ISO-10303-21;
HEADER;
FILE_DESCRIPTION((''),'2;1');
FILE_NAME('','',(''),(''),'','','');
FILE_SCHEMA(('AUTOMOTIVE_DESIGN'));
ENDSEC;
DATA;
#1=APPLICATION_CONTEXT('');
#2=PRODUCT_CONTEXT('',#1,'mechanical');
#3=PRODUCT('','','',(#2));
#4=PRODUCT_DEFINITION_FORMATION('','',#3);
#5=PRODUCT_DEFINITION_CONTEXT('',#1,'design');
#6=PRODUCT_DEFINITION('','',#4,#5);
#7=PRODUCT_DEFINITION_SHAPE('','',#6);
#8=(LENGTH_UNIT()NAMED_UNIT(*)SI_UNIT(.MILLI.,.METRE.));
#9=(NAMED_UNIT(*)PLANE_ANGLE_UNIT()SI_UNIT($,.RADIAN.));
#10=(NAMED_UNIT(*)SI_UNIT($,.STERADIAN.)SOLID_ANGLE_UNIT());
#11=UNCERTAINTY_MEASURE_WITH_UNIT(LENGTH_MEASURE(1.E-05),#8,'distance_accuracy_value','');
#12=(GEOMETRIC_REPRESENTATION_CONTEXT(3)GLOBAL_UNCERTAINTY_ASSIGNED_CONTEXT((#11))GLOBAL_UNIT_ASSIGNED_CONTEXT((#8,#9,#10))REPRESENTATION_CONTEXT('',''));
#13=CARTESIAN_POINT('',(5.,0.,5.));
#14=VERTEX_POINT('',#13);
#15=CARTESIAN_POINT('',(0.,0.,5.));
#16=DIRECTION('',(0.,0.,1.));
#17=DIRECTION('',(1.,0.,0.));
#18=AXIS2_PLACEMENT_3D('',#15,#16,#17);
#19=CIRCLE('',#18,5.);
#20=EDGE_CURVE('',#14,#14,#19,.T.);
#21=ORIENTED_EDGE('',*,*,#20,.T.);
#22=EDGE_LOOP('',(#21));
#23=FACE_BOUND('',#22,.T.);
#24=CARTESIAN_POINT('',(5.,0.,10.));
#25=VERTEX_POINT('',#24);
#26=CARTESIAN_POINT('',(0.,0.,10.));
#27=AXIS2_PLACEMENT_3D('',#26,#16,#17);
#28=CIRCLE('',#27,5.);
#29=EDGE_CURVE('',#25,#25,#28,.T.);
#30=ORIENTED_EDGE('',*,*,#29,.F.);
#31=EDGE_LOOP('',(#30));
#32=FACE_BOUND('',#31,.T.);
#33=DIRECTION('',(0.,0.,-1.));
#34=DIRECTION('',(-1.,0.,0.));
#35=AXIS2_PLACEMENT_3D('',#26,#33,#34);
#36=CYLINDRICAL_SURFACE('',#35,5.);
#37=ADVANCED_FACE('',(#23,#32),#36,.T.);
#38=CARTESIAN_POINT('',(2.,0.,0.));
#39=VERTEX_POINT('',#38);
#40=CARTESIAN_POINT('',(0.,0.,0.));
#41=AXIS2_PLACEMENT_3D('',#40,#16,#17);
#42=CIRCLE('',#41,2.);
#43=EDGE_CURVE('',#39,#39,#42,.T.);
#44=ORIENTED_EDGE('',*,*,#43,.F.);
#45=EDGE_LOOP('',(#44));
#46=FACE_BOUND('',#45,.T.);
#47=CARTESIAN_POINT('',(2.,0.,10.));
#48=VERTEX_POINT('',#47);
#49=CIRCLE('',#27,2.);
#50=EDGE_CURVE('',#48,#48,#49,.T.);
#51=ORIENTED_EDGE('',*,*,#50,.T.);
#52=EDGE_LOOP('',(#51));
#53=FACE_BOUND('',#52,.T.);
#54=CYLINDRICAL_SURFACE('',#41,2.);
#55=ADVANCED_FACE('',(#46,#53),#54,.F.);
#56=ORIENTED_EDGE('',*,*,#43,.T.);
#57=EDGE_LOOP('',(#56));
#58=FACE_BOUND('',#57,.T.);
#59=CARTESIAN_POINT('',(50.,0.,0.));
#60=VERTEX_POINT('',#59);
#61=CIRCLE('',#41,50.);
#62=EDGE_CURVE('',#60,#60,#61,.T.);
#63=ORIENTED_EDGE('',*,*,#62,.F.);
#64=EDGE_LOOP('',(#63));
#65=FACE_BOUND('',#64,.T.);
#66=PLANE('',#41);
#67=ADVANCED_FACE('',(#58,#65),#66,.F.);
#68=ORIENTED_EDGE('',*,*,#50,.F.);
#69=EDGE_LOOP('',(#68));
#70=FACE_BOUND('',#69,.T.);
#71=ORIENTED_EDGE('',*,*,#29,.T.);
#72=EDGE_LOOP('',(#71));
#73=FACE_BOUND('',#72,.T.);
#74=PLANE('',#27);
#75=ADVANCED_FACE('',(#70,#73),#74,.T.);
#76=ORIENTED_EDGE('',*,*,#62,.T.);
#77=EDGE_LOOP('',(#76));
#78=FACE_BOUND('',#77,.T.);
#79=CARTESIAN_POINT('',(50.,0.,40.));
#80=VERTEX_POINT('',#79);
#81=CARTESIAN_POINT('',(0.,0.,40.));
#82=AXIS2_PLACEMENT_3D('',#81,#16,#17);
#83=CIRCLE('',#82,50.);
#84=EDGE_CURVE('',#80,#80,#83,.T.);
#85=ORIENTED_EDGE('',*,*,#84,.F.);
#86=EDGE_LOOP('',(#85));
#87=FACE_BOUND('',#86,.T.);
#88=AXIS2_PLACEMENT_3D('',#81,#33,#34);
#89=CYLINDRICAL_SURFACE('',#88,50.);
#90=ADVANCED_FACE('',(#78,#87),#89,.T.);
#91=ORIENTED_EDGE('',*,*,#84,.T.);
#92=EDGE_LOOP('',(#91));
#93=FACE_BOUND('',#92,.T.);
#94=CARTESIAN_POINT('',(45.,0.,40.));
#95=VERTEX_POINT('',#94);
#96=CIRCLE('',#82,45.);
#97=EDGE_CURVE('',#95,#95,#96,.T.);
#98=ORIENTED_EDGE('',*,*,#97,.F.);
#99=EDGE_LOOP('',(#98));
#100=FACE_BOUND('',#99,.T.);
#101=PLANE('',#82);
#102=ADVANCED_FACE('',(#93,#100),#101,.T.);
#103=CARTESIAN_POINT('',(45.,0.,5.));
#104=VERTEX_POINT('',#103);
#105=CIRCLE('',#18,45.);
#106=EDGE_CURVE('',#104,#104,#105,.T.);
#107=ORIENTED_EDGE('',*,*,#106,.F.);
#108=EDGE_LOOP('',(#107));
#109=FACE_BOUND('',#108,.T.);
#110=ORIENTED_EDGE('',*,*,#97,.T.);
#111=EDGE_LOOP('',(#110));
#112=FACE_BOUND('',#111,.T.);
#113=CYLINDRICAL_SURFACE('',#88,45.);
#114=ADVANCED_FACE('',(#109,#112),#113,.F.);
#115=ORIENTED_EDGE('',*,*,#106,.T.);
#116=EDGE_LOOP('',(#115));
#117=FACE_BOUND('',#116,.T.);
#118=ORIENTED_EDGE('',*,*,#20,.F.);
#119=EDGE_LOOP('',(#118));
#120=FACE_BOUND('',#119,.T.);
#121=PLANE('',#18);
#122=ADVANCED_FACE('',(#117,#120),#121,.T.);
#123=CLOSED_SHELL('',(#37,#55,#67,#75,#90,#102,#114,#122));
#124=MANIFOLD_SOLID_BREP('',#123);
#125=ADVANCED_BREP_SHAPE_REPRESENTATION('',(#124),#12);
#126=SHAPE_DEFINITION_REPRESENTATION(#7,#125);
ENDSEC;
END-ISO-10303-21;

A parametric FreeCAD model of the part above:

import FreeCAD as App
import Part
import Sketcher
from FreeCAD import Vector
Q = App.Units.Quantity


def faces_at(feature, points):
    """Names of the faces that lie closest to the given points."""
    faces = feature.Shape.Faces
    near = lambda p: min(range(len(faces)), key=lambda i: faces[i].distToShape(Part.Vertex(*p))[0])
    return sorted({f"Face{near(p) + 1}" for p in points})

doc = App.newDocument("Part")
params = doc.addObject("Spreadsheet::Sheet", "Params")
for row, (alias, value) in enumerate([
    ("sketch1_diameter", "100 mm"),
    ("pad1_length", "40 mm"),
    ("thickness_wall", "5 mm"),
    ("sketch2_diameter", "4 mm"),
    ("sketch3_diameter", "10 mm"),
    ("sketch3_diameter2", "4 mm"),
    ("pad2_length", "5 mm"),
], start=1):
    params.set(f"A{row}", alias)
    params.set(f"B{row}", "=" + value)
    params.setAlias(f"B{row}", alias)

body = doc.addObject("PartDesign::Body", "Body")

# Sketch on XY plane
sketch1 = body.newObject("Sketcher::SketchObject", "Sketch")
sketch1.AttachmentSupport = (doc.getObject("XY_Plane"), [""])
sketch1.MapMode = "FlatFace"
sketch1.addGeometry(Part.Circle(Vector(0, 0, 0), Vector(0, 0, 1), 50), False)
sketch1.addConstraint(Sketcher.Constraint("Coincident", 0, 3, -1, 1))
sketch1.addConstraint(Sketcher.Constraint("Diameter", 0, Q("100 mm")))
sketch1.setExpression("Constraints[1]", "Params.sketch1_diameter")
pad1 = body.newObject("PartDesign::Pad", "Pad")
pad1.Profile = sketch1
pad1.setExpression("Length", "Params.pad1_length")
doc.recompute()

thickness = body.newObject("PartDesign::Thickness", "Thickness")
thickness.Base = (pad1, faces_at(pad1, [(0, 0, 40)]))
thickness.setExpression("Value", "Params.thickness_wall")
thickness.Reversed = True
thickness.Join = "Intersection"

# Sketch on XY plane
sketch2 = body.newObject("Sketcher::SketchObject", "Sketch001")
sketch2.AttachmentSupport = (doc.getObject("XY_Plane"), [""])
sketch2.MapMode = "FlatFace"
sketch2.AttachmentOffset = App.Placement(Vector(0, 0, 5), App.Rotation())
sketch2.addGeometry(Part.Circle(Vector(0, 0, 0), Vector(0, 0, 1), 2), False)
sketch2.addConstraint(Sketcher.Constraint("Coincident", 0, 3, -1, 1))
sketch2.addConstraint(Sketcher.Constraint("Diameter", 0, Q("4 mm")))
sketch2.setExpression("Constraints[1]", "Params.sketch2_diameter")
pocket1 = body.newObject("PartDesign::Pocket", "Pocket")
pocket1.Profile = sketch2
pocket1.Type = "ThroughAll"
pocket1.Midplane = True

# Sketch on XY plane
sketch3 = body.newObject("Sketcher::SketchObject", "Sketch002")
sketch3.AttachmentSupport = (doc.getObject("XY_Plane"), [""])
sketch3.MapMode = "FlatFace"
sketch3.AttachmentOffset = App.Placement(Vector(0, 0, 5), App.Rotation())
sketch3.addGeometry(Part.Circle(Vector(0, 0, 0), Vector(0, 0, 1), 5), False)
sketch3.addGeometry(Part.Circle(Vector(0, 0, 0), Vector(0, 0, 1), 2), False)
sketch3.addConstraint(Sketcher.Constraint("Coincident", 0, 3, -1, 1))
sketch3.addConstraint(Sketcher.Constraint("Coincident", 1, 3, -1, 1))
sketch3.addConstraint(Sketcher.Constraint("Diameter", 0, Q("10 mm")))
sketch3.addConstraint(Sketcher.Constraint("Diameter", 1, Q("4 mm")))
sketch3.setExpression("Constraints[2]", "Params.sketch3_diameter")
sketch3.setExpression("Constraints[3]", "Params.sketch3_diameter2")
pad2 = body.newObject("PartDesign::Pad", "Pad001")
pad2.Profile = sketch3
pad2.setExpression("Length", "Params.pad2_length")

doc.recompute()
